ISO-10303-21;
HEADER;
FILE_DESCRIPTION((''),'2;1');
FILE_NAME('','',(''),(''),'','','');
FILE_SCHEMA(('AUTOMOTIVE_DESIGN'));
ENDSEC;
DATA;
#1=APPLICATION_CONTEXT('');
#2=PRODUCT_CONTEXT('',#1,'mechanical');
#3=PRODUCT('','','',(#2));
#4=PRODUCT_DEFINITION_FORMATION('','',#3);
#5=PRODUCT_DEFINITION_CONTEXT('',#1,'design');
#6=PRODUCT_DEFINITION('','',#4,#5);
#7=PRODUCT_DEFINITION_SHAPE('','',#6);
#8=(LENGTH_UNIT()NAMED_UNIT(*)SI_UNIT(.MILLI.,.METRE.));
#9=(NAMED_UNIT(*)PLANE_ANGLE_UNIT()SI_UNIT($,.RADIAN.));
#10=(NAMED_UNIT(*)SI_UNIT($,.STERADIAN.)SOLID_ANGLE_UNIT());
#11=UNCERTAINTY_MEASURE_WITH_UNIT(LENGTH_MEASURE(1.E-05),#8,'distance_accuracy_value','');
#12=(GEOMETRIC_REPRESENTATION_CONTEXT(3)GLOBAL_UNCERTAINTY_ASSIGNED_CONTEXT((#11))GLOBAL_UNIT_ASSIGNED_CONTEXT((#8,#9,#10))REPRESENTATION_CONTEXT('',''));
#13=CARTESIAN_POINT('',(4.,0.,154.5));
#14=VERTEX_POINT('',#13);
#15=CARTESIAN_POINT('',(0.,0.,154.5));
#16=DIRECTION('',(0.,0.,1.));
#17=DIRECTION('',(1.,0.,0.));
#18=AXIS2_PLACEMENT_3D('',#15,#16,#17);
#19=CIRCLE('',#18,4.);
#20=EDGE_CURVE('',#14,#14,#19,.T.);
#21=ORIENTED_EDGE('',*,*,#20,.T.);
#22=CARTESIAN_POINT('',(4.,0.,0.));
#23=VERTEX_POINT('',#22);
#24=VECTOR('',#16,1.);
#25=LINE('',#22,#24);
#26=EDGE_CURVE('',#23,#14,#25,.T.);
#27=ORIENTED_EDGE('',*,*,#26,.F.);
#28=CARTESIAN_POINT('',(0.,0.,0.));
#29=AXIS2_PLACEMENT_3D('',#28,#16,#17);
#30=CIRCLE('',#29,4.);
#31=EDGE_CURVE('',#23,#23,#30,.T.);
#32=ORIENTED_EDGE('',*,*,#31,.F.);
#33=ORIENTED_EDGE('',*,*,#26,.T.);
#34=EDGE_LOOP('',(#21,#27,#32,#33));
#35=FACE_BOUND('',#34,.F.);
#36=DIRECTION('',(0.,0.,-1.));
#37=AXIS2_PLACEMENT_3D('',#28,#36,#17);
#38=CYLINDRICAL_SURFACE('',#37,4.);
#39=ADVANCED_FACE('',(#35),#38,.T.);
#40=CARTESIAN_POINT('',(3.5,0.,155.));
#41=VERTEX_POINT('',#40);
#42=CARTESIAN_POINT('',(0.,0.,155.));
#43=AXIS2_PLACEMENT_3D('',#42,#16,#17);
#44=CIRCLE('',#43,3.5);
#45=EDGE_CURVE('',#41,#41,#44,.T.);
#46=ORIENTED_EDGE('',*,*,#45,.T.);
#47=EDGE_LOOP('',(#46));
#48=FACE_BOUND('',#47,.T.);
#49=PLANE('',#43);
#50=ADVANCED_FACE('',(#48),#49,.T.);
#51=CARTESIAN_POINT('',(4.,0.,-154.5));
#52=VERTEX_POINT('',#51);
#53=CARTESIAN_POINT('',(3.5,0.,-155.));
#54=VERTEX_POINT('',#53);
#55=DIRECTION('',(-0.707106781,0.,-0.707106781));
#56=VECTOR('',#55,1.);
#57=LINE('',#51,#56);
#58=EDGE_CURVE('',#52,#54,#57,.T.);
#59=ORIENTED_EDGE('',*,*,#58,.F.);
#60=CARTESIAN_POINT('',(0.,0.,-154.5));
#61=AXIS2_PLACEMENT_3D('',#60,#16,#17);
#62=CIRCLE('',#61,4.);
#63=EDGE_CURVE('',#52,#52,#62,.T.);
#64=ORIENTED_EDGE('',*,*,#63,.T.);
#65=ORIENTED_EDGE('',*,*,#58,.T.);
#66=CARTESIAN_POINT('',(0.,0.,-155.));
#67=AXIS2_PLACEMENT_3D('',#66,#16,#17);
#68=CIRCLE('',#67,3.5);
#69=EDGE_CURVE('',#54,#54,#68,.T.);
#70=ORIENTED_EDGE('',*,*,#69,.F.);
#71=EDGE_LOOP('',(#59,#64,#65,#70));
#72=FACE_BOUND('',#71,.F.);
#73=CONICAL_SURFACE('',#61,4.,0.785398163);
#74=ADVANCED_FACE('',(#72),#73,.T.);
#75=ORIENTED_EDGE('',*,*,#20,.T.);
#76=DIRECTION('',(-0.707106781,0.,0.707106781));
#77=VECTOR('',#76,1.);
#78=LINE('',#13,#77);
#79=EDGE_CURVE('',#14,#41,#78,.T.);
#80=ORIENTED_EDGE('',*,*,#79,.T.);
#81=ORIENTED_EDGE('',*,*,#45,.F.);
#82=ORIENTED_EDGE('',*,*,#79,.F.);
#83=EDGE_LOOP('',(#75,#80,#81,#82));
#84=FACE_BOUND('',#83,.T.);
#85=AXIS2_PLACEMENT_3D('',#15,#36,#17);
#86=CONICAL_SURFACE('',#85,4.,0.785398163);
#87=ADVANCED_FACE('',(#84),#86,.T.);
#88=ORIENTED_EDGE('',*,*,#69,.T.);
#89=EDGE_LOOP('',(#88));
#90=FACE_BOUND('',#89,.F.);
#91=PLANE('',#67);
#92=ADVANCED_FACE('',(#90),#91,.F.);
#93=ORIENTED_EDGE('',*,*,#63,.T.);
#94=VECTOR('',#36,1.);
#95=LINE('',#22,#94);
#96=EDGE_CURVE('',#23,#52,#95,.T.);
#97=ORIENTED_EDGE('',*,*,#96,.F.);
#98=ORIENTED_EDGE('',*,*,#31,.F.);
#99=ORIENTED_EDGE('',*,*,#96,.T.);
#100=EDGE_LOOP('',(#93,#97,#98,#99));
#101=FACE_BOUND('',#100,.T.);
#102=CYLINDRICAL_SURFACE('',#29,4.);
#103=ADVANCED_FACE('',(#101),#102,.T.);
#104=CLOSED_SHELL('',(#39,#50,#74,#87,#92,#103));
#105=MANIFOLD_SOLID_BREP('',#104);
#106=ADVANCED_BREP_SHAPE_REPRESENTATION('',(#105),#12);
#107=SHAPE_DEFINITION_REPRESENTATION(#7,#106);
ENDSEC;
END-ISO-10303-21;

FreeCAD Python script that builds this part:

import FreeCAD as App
import Part
import Sketcher
from FreeCAD import Vector


def edges_at(feature, points):
    """Names of the edges that pass closest to the given points."""
    edges = feature.Shape.Edges
    near = lambda p: min(range(len(edges)), key=lambda i: edges[i].distToShape(Part.Vertex(*p))[0])
    return sorted({f"Edge{near(p) + 1}" for p in points})

doc = App.newDocument("Part")
body = doc.addObject("PartDesign::Body", "Body")

# Sketch on XY plane
sketch1 = body.newObject("Sketcher::SketchObject", "Sketch")
sketch1.AttachmentSupport = (doc.getObject("XY_Plane"), [""])
sketch1.MapMode = "FlatFace"
sketch1.addGeometry(Part.Circle(Vector(0, 0, 0), Vector(0, 0, 1), 4), False)
sketch1.addConstraint(Sketcher.Constraint("Coincident", 0, 3, -1, 1))
sketch1.addConstraint(Sketcher.Constraint("Diameter", 0, 8.0))
pad1 = body.newObject("PartDesign::Pad", "Pad")
pad1.Profile = sketch1
pad1.Length = 310
pad1.Midplane = True
doc.recompute()

chamfer = body.newObject("PartDesign::Chamfer", "Chamfer")
chamfer.Base = (pad1, edges_at(pad1, [(-4, 0, 155), (-4, 0, -155)]))
chamfer.Size = 0.5

doc.recompute()
